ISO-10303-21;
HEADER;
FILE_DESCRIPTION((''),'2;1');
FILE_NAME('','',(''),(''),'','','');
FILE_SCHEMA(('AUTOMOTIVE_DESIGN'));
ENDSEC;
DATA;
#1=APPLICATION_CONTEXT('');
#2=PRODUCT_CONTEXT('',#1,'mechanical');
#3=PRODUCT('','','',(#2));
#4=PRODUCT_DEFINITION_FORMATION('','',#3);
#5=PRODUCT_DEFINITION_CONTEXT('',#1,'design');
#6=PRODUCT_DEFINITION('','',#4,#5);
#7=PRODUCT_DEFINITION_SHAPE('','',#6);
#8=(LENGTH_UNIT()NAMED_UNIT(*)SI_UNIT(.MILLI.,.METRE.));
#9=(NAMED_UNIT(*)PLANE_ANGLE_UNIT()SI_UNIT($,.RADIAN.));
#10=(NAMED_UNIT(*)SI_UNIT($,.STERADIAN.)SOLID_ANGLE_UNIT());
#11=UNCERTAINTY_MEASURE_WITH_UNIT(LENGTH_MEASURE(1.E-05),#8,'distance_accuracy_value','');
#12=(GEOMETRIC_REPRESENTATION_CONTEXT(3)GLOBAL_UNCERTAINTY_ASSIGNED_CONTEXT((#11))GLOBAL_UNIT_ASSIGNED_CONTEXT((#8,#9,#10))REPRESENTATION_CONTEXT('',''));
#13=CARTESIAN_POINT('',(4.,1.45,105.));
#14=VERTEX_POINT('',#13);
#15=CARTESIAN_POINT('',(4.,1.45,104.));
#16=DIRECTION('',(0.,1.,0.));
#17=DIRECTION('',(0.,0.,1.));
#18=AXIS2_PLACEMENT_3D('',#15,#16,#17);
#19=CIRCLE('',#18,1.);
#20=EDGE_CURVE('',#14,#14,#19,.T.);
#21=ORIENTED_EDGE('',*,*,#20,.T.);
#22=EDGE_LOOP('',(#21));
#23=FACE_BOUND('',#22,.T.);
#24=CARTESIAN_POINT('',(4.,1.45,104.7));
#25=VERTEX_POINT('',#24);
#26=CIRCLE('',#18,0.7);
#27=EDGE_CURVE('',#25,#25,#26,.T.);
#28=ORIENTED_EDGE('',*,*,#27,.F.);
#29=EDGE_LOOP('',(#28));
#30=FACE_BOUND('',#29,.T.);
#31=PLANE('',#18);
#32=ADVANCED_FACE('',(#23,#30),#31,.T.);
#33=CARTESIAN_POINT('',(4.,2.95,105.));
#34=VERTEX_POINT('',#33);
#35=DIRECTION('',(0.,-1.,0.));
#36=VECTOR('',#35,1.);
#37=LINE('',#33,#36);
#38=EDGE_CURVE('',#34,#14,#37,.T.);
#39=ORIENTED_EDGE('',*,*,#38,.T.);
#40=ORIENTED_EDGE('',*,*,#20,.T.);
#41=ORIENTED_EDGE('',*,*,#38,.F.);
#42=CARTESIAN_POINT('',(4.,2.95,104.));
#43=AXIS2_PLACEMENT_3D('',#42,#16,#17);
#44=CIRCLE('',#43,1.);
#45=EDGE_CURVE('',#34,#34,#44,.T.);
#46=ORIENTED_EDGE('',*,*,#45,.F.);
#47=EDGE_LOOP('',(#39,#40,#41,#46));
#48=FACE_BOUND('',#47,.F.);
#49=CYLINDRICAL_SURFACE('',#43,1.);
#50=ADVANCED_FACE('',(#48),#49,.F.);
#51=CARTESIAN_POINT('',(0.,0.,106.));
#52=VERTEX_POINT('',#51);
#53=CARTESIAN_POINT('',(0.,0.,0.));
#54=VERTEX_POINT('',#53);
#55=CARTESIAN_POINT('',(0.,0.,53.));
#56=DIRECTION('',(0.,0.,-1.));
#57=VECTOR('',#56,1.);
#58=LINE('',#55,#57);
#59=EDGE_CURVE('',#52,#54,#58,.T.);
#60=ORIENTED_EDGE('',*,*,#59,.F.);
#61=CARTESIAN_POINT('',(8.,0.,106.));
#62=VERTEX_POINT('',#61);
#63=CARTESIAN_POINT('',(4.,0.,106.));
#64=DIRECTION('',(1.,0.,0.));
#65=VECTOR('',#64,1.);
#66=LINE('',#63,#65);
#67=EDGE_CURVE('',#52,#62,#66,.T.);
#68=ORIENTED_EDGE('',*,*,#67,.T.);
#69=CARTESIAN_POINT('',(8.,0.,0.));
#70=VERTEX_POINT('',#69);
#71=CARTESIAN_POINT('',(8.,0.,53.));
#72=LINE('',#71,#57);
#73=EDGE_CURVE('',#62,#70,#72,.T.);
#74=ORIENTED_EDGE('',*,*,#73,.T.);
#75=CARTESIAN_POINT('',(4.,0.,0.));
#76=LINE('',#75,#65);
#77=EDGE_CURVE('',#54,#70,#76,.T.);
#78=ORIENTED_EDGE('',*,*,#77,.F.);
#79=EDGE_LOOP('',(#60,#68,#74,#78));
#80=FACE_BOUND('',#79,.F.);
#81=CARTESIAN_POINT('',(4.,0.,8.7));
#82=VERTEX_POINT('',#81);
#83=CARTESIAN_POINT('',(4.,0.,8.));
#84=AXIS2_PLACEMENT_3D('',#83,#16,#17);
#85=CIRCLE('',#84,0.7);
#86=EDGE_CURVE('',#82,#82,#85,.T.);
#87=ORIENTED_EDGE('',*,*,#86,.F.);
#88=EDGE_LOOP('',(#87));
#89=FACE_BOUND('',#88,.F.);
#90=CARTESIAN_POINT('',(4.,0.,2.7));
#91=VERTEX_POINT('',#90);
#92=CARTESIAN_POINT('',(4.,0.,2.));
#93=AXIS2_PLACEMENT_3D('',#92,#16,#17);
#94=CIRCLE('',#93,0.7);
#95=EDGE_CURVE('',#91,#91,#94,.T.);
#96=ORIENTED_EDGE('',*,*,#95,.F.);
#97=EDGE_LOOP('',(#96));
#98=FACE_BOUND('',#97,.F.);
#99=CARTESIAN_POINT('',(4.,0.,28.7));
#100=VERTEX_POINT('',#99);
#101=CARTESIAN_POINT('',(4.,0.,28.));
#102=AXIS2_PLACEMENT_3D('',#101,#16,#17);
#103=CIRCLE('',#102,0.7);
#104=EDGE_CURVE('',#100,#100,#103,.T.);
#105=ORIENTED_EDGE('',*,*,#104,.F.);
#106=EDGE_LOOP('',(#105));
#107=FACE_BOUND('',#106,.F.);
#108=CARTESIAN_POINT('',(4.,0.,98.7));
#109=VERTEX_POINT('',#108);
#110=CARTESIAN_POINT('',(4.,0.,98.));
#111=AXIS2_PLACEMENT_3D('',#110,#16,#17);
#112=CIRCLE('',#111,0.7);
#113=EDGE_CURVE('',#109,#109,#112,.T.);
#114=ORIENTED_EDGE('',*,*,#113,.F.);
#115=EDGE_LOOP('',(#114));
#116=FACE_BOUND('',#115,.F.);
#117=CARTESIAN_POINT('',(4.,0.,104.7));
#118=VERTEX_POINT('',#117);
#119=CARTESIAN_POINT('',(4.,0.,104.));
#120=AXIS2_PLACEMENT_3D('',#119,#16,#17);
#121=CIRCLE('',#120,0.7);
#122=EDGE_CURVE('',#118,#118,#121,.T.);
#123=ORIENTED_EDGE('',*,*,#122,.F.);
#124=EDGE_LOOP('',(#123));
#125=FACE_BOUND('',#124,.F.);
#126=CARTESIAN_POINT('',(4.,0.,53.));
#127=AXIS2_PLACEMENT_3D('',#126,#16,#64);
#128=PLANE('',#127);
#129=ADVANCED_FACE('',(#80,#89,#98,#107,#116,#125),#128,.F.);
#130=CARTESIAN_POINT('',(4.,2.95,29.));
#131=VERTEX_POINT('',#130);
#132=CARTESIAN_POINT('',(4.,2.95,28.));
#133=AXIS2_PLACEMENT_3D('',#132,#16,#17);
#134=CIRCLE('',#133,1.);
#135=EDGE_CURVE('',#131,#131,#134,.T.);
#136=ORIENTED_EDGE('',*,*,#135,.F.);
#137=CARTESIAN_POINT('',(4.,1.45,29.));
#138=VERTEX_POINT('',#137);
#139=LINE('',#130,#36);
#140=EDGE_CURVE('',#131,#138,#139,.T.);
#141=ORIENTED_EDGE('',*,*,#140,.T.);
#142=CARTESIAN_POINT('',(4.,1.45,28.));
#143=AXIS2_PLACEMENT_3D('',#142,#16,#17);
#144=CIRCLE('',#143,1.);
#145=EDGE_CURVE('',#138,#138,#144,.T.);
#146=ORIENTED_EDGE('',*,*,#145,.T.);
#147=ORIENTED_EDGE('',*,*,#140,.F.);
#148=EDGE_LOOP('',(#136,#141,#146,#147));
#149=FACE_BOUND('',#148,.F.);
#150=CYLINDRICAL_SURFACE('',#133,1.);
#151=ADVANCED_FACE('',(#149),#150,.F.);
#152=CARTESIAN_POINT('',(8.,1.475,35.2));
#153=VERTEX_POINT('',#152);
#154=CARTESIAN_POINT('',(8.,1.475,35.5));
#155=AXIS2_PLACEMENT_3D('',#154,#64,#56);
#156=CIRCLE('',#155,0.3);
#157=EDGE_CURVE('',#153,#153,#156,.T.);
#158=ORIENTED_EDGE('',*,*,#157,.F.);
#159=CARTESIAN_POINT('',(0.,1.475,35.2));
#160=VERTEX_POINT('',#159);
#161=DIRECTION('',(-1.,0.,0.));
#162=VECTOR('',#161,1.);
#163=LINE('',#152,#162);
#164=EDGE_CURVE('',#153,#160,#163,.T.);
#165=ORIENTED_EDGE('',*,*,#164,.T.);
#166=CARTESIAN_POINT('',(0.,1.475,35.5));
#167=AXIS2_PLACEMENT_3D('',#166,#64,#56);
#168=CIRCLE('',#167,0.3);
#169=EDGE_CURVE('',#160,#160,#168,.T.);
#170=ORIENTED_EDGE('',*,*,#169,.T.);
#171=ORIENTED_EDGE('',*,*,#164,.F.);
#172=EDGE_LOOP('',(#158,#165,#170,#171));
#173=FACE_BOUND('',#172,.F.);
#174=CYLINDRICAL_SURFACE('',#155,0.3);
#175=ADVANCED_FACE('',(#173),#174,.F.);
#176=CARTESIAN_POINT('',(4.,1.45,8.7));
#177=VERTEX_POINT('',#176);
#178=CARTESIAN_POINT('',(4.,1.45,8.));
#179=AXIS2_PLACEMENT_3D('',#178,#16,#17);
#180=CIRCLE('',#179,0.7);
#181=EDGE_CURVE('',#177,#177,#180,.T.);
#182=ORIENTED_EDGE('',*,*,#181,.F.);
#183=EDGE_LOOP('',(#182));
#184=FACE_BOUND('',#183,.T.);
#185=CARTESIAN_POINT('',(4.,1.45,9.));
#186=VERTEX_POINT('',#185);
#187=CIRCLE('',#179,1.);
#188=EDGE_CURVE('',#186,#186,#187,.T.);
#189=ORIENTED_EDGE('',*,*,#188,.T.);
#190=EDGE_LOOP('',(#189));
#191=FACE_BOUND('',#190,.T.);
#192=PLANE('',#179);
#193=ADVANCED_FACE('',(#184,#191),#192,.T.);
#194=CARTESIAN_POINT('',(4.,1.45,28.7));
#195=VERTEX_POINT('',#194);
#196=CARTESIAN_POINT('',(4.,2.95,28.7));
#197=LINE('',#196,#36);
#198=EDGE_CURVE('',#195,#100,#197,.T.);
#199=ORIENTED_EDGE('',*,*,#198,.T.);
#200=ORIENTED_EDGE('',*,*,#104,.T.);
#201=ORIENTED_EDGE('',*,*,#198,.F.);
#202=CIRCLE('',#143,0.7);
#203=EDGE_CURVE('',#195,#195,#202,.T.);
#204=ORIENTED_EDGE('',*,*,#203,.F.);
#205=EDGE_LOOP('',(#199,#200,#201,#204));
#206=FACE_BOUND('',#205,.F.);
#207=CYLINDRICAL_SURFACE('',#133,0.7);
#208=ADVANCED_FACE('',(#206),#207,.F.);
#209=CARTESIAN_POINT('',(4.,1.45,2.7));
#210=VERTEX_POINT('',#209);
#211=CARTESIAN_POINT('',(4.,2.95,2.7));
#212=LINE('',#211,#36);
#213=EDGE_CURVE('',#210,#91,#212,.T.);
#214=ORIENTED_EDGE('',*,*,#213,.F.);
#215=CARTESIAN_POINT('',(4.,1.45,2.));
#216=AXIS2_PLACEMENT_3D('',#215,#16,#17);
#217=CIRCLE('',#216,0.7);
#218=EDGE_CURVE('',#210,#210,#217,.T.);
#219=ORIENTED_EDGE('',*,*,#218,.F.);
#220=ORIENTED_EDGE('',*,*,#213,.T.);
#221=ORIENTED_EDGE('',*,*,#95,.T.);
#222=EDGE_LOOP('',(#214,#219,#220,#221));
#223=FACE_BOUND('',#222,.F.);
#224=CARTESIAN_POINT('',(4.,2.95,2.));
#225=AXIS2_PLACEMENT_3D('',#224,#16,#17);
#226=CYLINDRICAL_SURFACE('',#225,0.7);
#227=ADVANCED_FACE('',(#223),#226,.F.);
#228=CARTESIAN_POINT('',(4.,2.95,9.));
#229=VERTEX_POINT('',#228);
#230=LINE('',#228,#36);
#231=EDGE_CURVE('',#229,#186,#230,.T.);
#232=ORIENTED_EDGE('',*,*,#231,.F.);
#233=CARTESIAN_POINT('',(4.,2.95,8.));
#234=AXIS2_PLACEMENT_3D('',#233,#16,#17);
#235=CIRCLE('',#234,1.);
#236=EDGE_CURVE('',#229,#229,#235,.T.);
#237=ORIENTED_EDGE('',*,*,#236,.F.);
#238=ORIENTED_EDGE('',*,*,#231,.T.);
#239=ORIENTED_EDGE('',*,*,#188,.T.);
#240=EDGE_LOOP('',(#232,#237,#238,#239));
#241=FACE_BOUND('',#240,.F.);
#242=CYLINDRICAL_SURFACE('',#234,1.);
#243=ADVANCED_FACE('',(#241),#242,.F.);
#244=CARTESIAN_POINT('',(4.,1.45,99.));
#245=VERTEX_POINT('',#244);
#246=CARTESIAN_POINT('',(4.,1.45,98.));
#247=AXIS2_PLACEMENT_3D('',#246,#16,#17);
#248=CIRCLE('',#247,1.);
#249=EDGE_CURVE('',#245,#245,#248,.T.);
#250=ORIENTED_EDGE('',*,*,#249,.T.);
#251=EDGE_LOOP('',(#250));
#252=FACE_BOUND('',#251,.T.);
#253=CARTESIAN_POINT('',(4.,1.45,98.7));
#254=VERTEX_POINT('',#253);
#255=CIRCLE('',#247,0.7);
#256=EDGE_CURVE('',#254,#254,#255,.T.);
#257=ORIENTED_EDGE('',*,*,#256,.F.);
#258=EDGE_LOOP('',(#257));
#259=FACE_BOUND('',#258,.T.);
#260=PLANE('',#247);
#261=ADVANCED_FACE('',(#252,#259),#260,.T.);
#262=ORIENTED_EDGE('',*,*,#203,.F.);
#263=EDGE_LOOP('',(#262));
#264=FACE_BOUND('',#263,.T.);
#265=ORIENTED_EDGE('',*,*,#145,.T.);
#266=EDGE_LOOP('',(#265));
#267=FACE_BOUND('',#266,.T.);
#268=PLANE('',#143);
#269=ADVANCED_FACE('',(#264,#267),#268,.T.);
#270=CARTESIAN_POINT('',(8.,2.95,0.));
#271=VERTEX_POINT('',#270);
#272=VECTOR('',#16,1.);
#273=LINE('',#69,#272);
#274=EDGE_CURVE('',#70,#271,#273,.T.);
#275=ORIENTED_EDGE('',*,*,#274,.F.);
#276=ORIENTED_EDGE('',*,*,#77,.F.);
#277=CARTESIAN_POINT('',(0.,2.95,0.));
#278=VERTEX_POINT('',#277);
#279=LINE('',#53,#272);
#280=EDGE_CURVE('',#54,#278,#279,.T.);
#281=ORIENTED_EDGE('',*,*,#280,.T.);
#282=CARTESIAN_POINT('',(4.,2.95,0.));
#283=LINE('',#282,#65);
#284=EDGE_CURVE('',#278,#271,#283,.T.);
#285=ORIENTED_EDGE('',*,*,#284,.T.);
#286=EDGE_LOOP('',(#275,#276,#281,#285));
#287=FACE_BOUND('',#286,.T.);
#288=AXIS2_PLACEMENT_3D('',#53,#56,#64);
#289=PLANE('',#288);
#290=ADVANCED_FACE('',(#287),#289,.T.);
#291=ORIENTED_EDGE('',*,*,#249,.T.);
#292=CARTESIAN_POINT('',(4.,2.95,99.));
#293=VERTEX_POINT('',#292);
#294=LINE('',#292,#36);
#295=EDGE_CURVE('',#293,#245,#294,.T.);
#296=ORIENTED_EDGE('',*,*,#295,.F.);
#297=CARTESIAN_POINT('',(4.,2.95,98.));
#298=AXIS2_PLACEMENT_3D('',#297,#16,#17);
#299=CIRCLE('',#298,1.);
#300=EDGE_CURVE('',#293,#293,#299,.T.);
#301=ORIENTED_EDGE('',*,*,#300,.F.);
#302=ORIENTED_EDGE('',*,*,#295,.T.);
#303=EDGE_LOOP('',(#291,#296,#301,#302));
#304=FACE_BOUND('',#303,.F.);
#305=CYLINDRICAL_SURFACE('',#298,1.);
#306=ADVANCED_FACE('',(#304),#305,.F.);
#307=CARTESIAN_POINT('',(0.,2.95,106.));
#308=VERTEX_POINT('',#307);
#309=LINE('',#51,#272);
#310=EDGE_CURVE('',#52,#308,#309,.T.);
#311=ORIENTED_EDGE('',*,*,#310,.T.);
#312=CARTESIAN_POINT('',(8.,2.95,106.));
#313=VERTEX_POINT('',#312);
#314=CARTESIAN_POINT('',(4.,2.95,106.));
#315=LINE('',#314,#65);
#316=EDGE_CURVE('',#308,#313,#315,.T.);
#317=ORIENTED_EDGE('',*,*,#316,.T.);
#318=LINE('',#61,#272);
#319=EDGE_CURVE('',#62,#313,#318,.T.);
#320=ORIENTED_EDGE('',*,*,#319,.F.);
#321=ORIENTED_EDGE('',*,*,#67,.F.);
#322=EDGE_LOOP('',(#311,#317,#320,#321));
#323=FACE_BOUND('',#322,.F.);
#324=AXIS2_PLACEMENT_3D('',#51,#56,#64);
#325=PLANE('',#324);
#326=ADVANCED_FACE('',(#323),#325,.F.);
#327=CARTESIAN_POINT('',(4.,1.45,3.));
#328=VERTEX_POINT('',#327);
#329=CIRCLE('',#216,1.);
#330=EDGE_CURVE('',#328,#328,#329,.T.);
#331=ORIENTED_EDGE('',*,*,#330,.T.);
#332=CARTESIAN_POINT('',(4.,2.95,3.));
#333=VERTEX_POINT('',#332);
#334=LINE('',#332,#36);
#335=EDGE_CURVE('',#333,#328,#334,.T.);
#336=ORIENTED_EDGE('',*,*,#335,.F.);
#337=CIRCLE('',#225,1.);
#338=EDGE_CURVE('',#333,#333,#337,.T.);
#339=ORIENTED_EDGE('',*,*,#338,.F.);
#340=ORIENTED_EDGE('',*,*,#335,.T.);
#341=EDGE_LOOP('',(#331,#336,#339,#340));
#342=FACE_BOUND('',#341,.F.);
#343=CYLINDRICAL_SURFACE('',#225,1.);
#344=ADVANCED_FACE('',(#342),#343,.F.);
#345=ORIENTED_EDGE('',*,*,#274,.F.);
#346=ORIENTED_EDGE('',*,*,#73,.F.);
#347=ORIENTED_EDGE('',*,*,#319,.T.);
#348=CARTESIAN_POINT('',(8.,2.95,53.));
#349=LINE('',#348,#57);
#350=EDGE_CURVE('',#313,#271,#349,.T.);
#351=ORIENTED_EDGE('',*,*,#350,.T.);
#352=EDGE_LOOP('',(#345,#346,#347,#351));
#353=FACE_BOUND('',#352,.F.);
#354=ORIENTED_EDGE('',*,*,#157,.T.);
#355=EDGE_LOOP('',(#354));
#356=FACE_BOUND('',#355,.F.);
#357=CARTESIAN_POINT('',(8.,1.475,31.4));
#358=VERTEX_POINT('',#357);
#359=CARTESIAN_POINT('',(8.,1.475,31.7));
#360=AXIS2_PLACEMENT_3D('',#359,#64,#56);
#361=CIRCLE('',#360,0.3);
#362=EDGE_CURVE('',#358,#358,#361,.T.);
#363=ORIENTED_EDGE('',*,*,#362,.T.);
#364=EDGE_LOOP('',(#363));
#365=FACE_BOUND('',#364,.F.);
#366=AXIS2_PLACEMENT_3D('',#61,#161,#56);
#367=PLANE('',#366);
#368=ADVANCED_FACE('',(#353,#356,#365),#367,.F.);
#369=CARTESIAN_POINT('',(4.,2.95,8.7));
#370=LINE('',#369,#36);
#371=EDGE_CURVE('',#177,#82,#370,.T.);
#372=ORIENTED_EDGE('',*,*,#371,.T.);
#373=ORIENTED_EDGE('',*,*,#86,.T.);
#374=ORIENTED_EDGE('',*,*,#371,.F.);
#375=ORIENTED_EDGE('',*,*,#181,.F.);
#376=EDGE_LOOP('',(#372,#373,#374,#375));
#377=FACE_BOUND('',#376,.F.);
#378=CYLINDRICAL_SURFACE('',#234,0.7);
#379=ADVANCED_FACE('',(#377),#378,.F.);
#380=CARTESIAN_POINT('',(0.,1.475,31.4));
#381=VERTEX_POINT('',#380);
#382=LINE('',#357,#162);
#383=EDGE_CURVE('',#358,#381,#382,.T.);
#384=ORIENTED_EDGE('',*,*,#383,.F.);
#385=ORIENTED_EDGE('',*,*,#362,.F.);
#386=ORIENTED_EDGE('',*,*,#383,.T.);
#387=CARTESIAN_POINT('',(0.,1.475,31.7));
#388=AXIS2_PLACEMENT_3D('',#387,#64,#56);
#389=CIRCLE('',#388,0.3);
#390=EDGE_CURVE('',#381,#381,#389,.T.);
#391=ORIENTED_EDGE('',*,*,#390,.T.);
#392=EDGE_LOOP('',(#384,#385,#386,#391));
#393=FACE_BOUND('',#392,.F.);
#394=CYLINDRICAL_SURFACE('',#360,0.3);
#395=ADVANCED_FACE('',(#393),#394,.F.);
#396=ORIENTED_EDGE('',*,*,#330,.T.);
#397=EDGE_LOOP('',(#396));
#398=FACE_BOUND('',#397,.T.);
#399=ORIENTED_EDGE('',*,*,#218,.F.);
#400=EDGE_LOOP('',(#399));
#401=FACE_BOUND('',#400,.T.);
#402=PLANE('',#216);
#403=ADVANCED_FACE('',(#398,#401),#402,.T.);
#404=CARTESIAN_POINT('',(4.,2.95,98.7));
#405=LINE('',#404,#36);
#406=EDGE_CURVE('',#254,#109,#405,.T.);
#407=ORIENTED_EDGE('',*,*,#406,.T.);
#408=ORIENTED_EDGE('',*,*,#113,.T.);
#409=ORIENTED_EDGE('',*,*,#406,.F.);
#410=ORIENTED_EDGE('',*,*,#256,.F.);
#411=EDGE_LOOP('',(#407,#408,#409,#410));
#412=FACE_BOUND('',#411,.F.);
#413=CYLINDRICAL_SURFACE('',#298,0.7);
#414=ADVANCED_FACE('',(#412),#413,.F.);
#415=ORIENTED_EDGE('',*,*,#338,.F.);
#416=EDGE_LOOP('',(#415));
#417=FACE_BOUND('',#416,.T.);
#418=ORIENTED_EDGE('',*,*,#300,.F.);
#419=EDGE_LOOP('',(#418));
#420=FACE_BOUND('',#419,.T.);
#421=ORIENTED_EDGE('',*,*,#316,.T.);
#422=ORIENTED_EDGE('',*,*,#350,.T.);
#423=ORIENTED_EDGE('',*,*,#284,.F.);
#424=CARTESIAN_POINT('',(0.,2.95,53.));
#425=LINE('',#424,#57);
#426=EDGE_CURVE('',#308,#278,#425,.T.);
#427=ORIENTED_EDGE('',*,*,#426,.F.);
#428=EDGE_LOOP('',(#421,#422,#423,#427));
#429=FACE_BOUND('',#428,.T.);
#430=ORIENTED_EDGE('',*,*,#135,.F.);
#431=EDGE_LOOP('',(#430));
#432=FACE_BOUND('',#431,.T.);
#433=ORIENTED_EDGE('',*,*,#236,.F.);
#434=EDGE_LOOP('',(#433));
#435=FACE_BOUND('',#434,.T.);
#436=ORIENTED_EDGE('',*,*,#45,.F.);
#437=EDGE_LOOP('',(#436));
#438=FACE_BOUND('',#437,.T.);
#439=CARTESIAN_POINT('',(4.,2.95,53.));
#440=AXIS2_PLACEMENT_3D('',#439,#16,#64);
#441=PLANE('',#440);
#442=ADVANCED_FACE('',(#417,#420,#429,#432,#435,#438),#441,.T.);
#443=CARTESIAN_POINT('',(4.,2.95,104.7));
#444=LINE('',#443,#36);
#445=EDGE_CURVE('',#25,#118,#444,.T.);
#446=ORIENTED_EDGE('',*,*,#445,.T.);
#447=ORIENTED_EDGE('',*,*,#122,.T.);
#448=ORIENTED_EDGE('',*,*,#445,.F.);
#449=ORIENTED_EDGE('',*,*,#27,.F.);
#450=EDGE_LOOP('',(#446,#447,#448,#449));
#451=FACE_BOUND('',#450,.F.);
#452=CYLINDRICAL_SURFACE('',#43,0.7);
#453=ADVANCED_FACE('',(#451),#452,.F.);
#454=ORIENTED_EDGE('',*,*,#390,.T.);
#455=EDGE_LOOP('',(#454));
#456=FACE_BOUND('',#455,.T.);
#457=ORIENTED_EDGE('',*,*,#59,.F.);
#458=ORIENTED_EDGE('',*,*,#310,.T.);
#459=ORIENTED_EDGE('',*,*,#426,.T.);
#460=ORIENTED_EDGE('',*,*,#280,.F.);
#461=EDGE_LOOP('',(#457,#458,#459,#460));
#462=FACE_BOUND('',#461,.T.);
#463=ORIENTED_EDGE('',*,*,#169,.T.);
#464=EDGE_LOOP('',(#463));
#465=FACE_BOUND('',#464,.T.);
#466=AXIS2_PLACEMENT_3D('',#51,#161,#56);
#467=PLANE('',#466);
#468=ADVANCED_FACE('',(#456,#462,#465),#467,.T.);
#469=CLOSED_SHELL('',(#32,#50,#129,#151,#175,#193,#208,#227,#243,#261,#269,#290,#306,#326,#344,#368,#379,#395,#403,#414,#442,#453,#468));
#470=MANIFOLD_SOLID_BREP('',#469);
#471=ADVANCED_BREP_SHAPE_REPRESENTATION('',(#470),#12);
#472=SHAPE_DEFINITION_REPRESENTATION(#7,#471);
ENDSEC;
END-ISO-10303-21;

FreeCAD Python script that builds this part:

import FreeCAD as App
import Part
import Sketcher

V = App.Vector


def add_polygon(sketch, points):
    """Adds a closed chain of lines whose ends are joined by coincident constraints."""
    first, n = sketch.GeometryCount, len(points)
    for a, b in zip(points, points[1:] + points[:1]):
        sketch.addGeometry(Part.LineSegment(App.Vector(*a, 0), App.Vector(*b, 0)), False)
    for i in range(n):
        sketch.addConstraint(Sketcher.Constraint("Coincident", first + i, 2, first + (i + 1) % n, 1))

doc = App.newDocument("Part")
body = doc.addObject("PartDesign::Body", "Body")

# Sketch on XZ plane
sketch1 = body.newObject("Sketcher::SketchObject", "Sketch")
sketch1.AttachmentSupport = (doc.getObject("XZ_Plane"), [""])
sketch1.MapMode = "FlatFace"
add_polygon(sketch1, [(0, 0), (0, 106), (8, 106), (8, 0)])  # lines 0-3
sketch1.addConstraint([
    Sketcher.Constraint("Vertical", 0),
    Sketcher.Constraint("Horizontal", 1),
    Sketcher.Constraint("Vertical", 2),
    Sketcher.Constraint("Horizontal", 3),
    Sketcher.Constraint("Coincident", 3, 2, -1, 1),
    Sketcher.Constraint("DistanceX", 1, 1, 1, 2, 8.0),
    Sketcher.Constraint("DistanceY", 0, 1, 0, 2, 106.0),
])
pad1 = body.newObject("PartDesign::Pad", "Pad")
pad1.Profile = sketch1
pad1.Length = 2.95
pad1.Reversed = True

# Sketch on XZ plane
sketch2 = body.newObject("Sketcher::SketchObject", "Sketch001")
sketch2.AttachmentSupport = (doc.getObject("XZ_Plane"), [""])
sketch2.MapMode = "FlatFace"
sketch2.AttachmentOffset = App.Placement(V(0, 0, -2.95), App.Rotation())
sketch2.addGeometry([
    Part.Circle(V(4, 8, 0), V(0, 0, 1), 0.7),  # 0
    Part.Circle(V(4, 2, 0), V(0, 0, 1), 0.7),  # 1
    Part.Circle(V(4, 104, 0), V(0, 0, 1), 0.7),  # 2
    Part.Circle(V(4, 98, 0), V(0, 0, 1), 0.7),  # 3
    Part.Circle(V(4, 28, 0), V(0, 0, 1), 0.7),  # 4
], False)
sketch2.addConstraint([
    Sketcher.Constraint("Equal", 0, 1),
    Sketcher.Constraint("Equal", 1, 2),
    Sketcher.Constraint("Equal", 2, 3),
    Sketcher.Constraint("Equal", 3, 4),
    Sketcher.Constraint("Vertical", 0, 3, 1, 3),
    Sketcher.Constraint("Vertical", 1, 3, 2, 3),
    Sketcher.Constraint("Vertical", 2, 3, 3, 3),
    Sketcher.Constraint("Vertical", 3, 3, 4, 3),
    Sketcher.Constraint("Diameter", 0, 1.4),
    Sketcher.Constraint("DistanceX", -1, 1, 0, 3, 4.0),
    Sketcher.Constraint("DistanceY", -1, 1, 0, 3, 8.0),
    Sketcher.Constraint("DistanceY", -1, 1, 1, 3, 2.0),
    Sketcher.Constraint("DistanceY", -1, 1, 2, 3, 104.0),
    Sketcher.Constraint("DistanceY", -1, 1, 3, 3, 98.0),
    Sketcher.Constraint("DistanceY", -1, 1, 4, 3, 28.0),
])
pocket1 = body.newObject("PartDesign::Pocket", "Pocket")
pocket1.Profile = sketch2
pocket1.Type = "ThroughAll"
pocket1.Reversed = True

# Sketch on XZ plane
sketch3 = body.newObject("Sketcher::SketchObject", "Sketch002")
sketch3.AttachmentSupport = (doc.getObject("XZ_Plane"), [""])
sketch3.MapMode = "FlatFace"
sketch3.AttachmentOffset = App.Placement(V(0, 0, -2.95), App.Rotation())
sketch3.addGeometry([
    Part.Circle(V(4, 8, 0), V(0, 0, 1), 1),  # 0
    Part.Circle(V(4, 2, 0), V(0, 0, 1), 1),  # 1
    Part.Circle(V(4, 104, 0), V(0, 0, 1), 1),  # 2
    Part.Circle(V(4, 98, 0), V(0, 0, 1), 1),  # 3
    Part.Circle(V(4, 28, 0), V(0, 0, 1), 1),  # 4
], False)
sketch3.addConstraint([
    Sketcher.Constraint("Equal", 0, 1),
    Sketcher.Constraint("Equal", 1, 2),
    Sketcher.Constraint("Equal", 2, 3),
    Sketcher.Constraint("Equal", 3, 4),
    Sketcher.Constraint("Vertical", 0, 3, 1, 3),
    Sketcher.Constraint("Vertical", 1, 3, 2, 3),
    Sketcher.Constraint("Vertical", 2, 3, 3, 3),
    Sketcher.Constraint("Vertical", 3, 3, 4, 3),
    Sketcher.Constraint("Diameter", 0, 2.0),
    Sketcher.Constraint("DistanceX", -1, 1, 0, 3, 4.0),
    Sketcher.Constraint("DistanceY", -1, 1, 0, 3, 8.0),
    Sketcher.Constraint("DistanceY", -1, 1, 1, 3, 2.0),
    Sketcher.Constraint("DistanceY", -1, 1, 2, 3, 104.0),
    Sketcher.Constraint("DistanceY", -1, 1, 3, 3, 98.0),
    Sketcher.Constraint("DistanceY", -1, 1, 4, 3, 28.0),
])
pocket2 = body.newObject("PartDesign::Pocket", "Pocket001")
pocket2.Profile = sketch3
pocket2.Length = 1.5
pocket2.Reversed = True

# Sketch on YZ plane
sketch4 = body.newObject("Sketcher::SketchObject", "Sketch003")
sketch4.AttachmentSupport = (doc.getObject("YZ_Plane"), [""])
sketch4.MapMode = "FlatFace"
sketch4.AttachmentOffset = App.Placement(V(0, 0, 8), App.Rotation())
sketch4.addGeometry([
    Part.Circle(V(1.48, 31.7, 0), V(0, 0, 1), 0.3),
    Part.Circle(V(1.48, 35.5, 0), V(0, 0, 1), 0.3),
], False)
sketch4.addConstraint([
    Sketcher.Constraint("Equal", 0, 1),
    Sketcher.Constraint("Vertical", 0, 3, 1, 3),
    Sketcher.Constraint("Diameter", 0, 0.6),
    Sketcher.Constraint("DistanceY", -1, 1, 0, 3, 31.7),
    Sketcher.Constraint("DistanceY", -1, 1, 1, 3, 35.5),
    Sketcher.Constraint("DistanceX", -1, 1, 0, 3, 1.475),
])
pocket3 = body.newObject("PartDesign::Pocket", "Pocket002")
pocket3.Profile = sketch4
pocket3.Type = "ThroughAll"

doc.recompute()
